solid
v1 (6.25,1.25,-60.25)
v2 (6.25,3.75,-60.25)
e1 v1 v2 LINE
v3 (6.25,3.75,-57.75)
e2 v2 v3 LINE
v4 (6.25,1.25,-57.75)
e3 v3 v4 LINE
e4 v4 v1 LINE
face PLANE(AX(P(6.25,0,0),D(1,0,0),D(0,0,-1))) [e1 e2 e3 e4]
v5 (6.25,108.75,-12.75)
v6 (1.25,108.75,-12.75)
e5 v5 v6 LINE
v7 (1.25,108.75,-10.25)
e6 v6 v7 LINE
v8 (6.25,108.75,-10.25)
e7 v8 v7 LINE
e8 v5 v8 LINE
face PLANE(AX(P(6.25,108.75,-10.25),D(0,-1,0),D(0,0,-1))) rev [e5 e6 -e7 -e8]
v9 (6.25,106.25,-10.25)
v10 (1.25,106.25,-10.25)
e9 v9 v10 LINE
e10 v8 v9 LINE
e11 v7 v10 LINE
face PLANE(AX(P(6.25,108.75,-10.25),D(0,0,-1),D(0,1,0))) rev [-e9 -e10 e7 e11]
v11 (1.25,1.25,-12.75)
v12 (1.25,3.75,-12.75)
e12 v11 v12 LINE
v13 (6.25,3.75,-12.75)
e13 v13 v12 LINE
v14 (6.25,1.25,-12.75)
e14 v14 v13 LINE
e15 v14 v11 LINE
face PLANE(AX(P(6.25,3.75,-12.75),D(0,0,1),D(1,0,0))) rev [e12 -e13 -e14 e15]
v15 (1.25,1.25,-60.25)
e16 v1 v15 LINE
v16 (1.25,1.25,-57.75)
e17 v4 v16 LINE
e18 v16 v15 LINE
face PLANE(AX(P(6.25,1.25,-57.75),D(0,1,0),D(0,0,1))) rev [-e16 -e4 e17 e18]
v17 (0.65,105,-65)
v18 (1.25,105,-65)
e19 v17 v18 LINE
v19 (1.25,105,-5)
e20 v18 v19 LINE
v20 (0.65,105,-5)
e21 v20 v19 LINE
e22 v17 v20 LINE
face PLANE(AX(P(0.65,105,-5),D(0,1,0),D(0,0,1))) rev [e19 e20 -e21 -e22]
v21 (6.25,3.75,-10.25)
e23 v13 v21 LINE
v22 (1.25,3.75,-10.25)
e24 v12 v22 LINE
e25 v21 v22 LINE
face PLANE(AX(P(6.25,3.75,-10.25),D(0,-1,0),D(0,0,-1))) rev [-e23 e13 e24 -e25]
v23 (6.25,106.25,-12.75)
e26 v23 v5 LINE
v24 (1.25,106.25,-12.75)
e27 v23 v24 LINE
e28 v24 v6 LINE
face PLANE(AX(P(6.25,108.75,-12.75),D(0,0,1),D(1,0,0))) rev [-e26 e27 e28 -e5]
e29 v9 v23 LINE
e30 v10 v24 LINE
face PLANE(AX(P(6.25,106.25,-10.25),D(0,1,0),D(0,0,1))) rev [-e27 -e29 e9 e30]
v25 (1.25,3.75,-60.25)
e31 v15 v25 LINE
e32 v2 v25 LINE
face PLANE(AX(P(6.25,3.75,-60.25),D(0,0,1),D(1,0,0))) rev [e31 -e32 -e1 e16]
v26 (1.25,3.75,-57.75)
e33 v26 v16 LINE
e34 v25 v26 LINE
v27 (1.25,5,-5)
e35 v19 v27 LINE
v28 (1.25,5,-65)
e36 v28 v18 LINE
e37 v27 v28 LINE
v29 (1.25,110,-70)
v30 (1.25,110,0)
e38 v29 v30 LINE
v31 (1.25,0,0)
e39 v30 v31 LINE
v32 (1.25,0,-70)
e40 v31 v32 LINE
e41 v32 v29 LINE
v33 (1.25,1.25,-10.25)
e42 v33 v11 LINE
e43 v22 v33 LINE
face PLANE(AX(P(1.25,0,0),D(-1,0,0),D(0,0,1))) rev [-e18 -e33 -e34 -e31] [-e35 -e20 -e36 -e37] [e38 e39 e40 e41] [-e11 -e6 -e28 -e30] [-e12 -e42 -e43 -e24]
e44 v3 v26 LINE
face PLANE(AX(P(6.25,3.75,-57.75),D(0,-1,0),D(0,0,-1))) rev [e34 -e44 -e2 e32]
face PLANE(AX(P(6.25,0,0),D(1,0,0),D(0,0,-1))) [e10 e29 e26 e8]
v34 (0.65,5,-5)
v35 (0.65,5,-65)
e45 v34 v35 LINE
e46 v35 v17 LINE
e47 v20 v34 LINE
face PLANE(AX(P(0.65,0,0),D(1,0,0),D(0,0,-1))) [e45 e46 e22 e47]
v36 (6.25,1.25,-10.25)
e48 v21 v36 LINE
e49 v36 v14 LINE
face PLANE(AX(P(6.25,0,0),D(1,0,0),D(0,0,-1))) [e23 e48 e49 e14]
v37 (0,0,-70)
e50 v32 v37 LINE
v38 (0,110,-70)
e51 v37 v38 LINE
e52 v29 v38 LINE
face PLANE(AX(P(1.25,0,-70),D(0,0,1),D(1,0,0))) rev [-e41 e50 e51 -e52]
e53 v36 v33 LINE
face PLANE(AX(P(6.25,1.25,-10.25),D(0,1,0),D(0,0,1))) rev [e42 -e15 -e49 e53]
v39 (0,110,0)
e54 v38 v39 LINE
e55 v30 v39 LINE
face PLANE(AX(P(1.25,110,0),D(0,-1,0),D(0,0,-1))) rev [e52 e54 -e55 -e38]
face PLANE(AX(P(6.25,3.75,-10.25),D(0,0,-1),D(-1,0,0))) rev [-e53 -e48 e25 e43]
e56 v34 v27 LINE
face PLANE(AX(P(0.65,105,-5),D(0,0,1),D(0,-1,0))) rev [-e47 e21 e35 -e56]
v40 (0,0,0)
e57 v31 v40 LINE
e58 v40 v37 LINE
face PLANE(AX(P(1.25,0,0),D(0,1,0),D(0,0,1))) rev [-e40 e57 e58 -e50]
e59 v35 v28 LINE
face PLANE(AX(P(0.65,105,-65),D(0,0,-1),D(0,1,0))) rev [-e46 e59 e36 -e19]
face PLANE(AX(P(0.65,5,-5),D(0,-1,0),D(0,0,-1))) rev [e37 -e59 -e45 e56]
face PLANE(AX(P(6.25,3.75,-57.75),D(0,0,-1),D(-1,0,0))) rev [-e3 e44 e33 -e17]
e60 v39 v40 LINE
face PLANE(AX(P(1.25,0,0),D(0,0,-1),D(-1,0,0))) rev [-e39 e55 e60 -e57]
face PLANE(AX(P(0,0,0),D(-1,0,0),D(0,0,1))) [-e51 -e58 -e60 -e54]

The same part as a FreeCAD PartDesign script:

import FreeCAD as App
import Part
import Sketcher


def add_polygon(sketch, points):
    """Adds a closed chain of lines whose ends are joined by coincident constraints."""
    first, n = sketch.GeometryCount, len(points)
    for a, b in zip(points, points[1:] + points[:1]):
        sketch.addGeometry(Part.LineSegment(App.Vector(*a, 0), App.Vector(*b, 0)), False)
    for i in range(n):
        sketch.addConstraint(Sketcher.Constraint("Coincident", first + i, 2, first + (i + 1) % n, 1))

doc = App.newDocument("Part")
body = doc.addObject("PartDesign::Body", "Body")

sketch1 = body.newObject("Sketcher::SketchObject", "Sketch")
sketch1.AttachmentSupport = (doc.getObject("YZ_Plane"), [""])
sketch1.MapMode = "FlatFace"
add_polygon(sketch1, [(110, 0), (0, 0), (0, -70), (110, -70)])
sketch1.addConstraint(Sketcher.Constraint("Horizontal", 0))
sketch1.addConstraint(Sketcher.Constraint("Vertical", 1))
sketch1.addConstraint(Sketcher.Constraint("Horizontal", 2))
sketch1.addConstraint(Sketcher.Constraint("Vertical", 3))
sketch1.addConstraint(Sketcher.Constraint("Coincident", 0, 2, -1, 1))
sketch1.addConstraint(Sketcher.Constraint("DistanceX", 0, 2, 0, 1, 110.0))
sketch1.addConstraint(Sketcher.Constraint("DistanceY", 1, 2, 1, 1, 70.0))
pad1 = body.newObject("PartDesign::Pad", "Pad")
pad1.Profile = sketch1
pad1.Length = 1.25

sketch2 = body.newObject("Sketcher::SketchObject", "Sketch001")
sketch2.AttachmentSupport = (doc.getObject("YZ_Plane"), [""])
sketch2.MapMode = "FlatFace"
sketch2.AttachmentOffset = App.Placement(App.Vector(0, 0, 1.25), App.Rotation())
add_polygon(sketch2, [(108.75, -10.25), (106.25, -10.25), (106.25, -12.75), (108.75, -12.75)])
add_polygon(sketch2, [(3.75, -10.25), (1.25, -10.25), (1.25, -12.75), (3.75, -12.75)])
add_polygon(sketch2, [(3.75, -57.75), (1.25, -57.75), (1.25, -60.25), (3.75, -60.25)])
sketch2.addConstraint(Sketcher.Constraint("Horizontal", 0))
sketch2.addConstraint(Sketcher.Constraint("Vertical", 1))
sketch2.addConstraint(Sketcher.Constraint("Horizontal", 2))
sketch2.addConstraint(Sketcher.Constraint("Vertical", 3))
sketch2.addConstraint(Sketcher.Constraint("Horizontal", 4))
sketch2.addConstraint(Sketcher.Constraint("Vertical", 5))
sketch2.addConstraint(Sketcher.Constraint("Horizontal", 6))
sketch2.addConstraint(Sketcher.Constraint("Vertical", 7))
sketch2.addConstraint(Sketcher.Constraint("Horizontal", 8))
sketch2.addConstraint(Sketcher.Constraint("Vertical", 9))
sketch2.addConstraint(Sketcher.Constraint("Horizontal", 10))
sketch2.addConstraint(Sketcher.Constraint("Vertical", 11))
sketch2.addConstraint(Sketcher.Constraint("Horizontal", 3, 2, 4, 2))
sketch2.addConstraint(Sketcher.Constraint("Horizontal", 2, 2, 5, 2))
sketch2.addConstraint(Sketcher.Constraint("Vertical", 5, 2, 8, 2))
sketch2.addConstraint(Sketcher.Constraint("Vertical", 7, 2, 10, 2))
sketch2.addConstraint(Sketcher.Constraint("Equal", 2, 4))
sketch2.addConstraint(Sketcher.Constraint("Equal", 10, 1))
sketch2.addConstraint(Sketcher.Constraint("Equal", 7, 9))
sketch2.addConstraint(Sketcher.Constraint("DistanceX", 0, 2, 0, 1, 2.5))
sketch2.addConstraint(Sketcher.Constraint("DistanceX", 4, 2, 0, 2, 105.0))
sketch2.addConstraint(Sketcher.Constraint("DistanceY", 8, 2, 5, 2, 45.0))
sketch2.addConstraint(Sketcher.Constraint("DistanceX", -1, 1, 0, 2, 106.25))
sketch2.addConstraint(Sketcher.Constraint("DistanceY", 0, 2, -1, 1, 10.25))
pad2 = body.newObject("PartDesign::Pad", "Pad001")
pad2.Profile = sketch2
pad2.Length = 5

sketch3 = body.newObject("Sketcher::SketchObject", "Sketch002")
sketch3.AttachmentSupport = (doc.getObject("YZ_Plane"), [""])
sketch3.MapMode = "FlatFace"
sketch3.AttachmentOffset = App.Placement(App.Vector(0, 0, 1.25), App.Rotation())
add_polygon(sketch3, [(105, -5), (5, -5), (5, -65), (105, -65)])
sketch3.addConstraint(Sketcher.Constraint("Horizontal", 0))
sketch3.addConstraint(Sketcher.Constraint("Vertical", 1))
sketch3.addConstraint(Sketcher.Constraint("Horizontal", 2))
sketch3.addConstraint(Sketcher.Constraint("Vertical", 3))
sketch3.addConstraint(Sketcher.Constraint("DistanceX", 0, 2, 0, 1, 100.0))
sketch3.addConstraint(Sketcher.Constraint("DistanceY", 1, 2, 1, 1, 60.0))
sketch3.addConstraint(Sketcher.Constraint("DistanceX", -1, 1, 0, 2, 5.0))
sketch3.addConstraint(Sketcher.Constraint("DistanceY", 0, 2, -1, 1, 5.0))
pocket1 = body.newObject("PartDesign::Pocket", "Pocket")
pocket1.Profile = sketch3
pocket1.Length = 0.6

doc.recompute()
